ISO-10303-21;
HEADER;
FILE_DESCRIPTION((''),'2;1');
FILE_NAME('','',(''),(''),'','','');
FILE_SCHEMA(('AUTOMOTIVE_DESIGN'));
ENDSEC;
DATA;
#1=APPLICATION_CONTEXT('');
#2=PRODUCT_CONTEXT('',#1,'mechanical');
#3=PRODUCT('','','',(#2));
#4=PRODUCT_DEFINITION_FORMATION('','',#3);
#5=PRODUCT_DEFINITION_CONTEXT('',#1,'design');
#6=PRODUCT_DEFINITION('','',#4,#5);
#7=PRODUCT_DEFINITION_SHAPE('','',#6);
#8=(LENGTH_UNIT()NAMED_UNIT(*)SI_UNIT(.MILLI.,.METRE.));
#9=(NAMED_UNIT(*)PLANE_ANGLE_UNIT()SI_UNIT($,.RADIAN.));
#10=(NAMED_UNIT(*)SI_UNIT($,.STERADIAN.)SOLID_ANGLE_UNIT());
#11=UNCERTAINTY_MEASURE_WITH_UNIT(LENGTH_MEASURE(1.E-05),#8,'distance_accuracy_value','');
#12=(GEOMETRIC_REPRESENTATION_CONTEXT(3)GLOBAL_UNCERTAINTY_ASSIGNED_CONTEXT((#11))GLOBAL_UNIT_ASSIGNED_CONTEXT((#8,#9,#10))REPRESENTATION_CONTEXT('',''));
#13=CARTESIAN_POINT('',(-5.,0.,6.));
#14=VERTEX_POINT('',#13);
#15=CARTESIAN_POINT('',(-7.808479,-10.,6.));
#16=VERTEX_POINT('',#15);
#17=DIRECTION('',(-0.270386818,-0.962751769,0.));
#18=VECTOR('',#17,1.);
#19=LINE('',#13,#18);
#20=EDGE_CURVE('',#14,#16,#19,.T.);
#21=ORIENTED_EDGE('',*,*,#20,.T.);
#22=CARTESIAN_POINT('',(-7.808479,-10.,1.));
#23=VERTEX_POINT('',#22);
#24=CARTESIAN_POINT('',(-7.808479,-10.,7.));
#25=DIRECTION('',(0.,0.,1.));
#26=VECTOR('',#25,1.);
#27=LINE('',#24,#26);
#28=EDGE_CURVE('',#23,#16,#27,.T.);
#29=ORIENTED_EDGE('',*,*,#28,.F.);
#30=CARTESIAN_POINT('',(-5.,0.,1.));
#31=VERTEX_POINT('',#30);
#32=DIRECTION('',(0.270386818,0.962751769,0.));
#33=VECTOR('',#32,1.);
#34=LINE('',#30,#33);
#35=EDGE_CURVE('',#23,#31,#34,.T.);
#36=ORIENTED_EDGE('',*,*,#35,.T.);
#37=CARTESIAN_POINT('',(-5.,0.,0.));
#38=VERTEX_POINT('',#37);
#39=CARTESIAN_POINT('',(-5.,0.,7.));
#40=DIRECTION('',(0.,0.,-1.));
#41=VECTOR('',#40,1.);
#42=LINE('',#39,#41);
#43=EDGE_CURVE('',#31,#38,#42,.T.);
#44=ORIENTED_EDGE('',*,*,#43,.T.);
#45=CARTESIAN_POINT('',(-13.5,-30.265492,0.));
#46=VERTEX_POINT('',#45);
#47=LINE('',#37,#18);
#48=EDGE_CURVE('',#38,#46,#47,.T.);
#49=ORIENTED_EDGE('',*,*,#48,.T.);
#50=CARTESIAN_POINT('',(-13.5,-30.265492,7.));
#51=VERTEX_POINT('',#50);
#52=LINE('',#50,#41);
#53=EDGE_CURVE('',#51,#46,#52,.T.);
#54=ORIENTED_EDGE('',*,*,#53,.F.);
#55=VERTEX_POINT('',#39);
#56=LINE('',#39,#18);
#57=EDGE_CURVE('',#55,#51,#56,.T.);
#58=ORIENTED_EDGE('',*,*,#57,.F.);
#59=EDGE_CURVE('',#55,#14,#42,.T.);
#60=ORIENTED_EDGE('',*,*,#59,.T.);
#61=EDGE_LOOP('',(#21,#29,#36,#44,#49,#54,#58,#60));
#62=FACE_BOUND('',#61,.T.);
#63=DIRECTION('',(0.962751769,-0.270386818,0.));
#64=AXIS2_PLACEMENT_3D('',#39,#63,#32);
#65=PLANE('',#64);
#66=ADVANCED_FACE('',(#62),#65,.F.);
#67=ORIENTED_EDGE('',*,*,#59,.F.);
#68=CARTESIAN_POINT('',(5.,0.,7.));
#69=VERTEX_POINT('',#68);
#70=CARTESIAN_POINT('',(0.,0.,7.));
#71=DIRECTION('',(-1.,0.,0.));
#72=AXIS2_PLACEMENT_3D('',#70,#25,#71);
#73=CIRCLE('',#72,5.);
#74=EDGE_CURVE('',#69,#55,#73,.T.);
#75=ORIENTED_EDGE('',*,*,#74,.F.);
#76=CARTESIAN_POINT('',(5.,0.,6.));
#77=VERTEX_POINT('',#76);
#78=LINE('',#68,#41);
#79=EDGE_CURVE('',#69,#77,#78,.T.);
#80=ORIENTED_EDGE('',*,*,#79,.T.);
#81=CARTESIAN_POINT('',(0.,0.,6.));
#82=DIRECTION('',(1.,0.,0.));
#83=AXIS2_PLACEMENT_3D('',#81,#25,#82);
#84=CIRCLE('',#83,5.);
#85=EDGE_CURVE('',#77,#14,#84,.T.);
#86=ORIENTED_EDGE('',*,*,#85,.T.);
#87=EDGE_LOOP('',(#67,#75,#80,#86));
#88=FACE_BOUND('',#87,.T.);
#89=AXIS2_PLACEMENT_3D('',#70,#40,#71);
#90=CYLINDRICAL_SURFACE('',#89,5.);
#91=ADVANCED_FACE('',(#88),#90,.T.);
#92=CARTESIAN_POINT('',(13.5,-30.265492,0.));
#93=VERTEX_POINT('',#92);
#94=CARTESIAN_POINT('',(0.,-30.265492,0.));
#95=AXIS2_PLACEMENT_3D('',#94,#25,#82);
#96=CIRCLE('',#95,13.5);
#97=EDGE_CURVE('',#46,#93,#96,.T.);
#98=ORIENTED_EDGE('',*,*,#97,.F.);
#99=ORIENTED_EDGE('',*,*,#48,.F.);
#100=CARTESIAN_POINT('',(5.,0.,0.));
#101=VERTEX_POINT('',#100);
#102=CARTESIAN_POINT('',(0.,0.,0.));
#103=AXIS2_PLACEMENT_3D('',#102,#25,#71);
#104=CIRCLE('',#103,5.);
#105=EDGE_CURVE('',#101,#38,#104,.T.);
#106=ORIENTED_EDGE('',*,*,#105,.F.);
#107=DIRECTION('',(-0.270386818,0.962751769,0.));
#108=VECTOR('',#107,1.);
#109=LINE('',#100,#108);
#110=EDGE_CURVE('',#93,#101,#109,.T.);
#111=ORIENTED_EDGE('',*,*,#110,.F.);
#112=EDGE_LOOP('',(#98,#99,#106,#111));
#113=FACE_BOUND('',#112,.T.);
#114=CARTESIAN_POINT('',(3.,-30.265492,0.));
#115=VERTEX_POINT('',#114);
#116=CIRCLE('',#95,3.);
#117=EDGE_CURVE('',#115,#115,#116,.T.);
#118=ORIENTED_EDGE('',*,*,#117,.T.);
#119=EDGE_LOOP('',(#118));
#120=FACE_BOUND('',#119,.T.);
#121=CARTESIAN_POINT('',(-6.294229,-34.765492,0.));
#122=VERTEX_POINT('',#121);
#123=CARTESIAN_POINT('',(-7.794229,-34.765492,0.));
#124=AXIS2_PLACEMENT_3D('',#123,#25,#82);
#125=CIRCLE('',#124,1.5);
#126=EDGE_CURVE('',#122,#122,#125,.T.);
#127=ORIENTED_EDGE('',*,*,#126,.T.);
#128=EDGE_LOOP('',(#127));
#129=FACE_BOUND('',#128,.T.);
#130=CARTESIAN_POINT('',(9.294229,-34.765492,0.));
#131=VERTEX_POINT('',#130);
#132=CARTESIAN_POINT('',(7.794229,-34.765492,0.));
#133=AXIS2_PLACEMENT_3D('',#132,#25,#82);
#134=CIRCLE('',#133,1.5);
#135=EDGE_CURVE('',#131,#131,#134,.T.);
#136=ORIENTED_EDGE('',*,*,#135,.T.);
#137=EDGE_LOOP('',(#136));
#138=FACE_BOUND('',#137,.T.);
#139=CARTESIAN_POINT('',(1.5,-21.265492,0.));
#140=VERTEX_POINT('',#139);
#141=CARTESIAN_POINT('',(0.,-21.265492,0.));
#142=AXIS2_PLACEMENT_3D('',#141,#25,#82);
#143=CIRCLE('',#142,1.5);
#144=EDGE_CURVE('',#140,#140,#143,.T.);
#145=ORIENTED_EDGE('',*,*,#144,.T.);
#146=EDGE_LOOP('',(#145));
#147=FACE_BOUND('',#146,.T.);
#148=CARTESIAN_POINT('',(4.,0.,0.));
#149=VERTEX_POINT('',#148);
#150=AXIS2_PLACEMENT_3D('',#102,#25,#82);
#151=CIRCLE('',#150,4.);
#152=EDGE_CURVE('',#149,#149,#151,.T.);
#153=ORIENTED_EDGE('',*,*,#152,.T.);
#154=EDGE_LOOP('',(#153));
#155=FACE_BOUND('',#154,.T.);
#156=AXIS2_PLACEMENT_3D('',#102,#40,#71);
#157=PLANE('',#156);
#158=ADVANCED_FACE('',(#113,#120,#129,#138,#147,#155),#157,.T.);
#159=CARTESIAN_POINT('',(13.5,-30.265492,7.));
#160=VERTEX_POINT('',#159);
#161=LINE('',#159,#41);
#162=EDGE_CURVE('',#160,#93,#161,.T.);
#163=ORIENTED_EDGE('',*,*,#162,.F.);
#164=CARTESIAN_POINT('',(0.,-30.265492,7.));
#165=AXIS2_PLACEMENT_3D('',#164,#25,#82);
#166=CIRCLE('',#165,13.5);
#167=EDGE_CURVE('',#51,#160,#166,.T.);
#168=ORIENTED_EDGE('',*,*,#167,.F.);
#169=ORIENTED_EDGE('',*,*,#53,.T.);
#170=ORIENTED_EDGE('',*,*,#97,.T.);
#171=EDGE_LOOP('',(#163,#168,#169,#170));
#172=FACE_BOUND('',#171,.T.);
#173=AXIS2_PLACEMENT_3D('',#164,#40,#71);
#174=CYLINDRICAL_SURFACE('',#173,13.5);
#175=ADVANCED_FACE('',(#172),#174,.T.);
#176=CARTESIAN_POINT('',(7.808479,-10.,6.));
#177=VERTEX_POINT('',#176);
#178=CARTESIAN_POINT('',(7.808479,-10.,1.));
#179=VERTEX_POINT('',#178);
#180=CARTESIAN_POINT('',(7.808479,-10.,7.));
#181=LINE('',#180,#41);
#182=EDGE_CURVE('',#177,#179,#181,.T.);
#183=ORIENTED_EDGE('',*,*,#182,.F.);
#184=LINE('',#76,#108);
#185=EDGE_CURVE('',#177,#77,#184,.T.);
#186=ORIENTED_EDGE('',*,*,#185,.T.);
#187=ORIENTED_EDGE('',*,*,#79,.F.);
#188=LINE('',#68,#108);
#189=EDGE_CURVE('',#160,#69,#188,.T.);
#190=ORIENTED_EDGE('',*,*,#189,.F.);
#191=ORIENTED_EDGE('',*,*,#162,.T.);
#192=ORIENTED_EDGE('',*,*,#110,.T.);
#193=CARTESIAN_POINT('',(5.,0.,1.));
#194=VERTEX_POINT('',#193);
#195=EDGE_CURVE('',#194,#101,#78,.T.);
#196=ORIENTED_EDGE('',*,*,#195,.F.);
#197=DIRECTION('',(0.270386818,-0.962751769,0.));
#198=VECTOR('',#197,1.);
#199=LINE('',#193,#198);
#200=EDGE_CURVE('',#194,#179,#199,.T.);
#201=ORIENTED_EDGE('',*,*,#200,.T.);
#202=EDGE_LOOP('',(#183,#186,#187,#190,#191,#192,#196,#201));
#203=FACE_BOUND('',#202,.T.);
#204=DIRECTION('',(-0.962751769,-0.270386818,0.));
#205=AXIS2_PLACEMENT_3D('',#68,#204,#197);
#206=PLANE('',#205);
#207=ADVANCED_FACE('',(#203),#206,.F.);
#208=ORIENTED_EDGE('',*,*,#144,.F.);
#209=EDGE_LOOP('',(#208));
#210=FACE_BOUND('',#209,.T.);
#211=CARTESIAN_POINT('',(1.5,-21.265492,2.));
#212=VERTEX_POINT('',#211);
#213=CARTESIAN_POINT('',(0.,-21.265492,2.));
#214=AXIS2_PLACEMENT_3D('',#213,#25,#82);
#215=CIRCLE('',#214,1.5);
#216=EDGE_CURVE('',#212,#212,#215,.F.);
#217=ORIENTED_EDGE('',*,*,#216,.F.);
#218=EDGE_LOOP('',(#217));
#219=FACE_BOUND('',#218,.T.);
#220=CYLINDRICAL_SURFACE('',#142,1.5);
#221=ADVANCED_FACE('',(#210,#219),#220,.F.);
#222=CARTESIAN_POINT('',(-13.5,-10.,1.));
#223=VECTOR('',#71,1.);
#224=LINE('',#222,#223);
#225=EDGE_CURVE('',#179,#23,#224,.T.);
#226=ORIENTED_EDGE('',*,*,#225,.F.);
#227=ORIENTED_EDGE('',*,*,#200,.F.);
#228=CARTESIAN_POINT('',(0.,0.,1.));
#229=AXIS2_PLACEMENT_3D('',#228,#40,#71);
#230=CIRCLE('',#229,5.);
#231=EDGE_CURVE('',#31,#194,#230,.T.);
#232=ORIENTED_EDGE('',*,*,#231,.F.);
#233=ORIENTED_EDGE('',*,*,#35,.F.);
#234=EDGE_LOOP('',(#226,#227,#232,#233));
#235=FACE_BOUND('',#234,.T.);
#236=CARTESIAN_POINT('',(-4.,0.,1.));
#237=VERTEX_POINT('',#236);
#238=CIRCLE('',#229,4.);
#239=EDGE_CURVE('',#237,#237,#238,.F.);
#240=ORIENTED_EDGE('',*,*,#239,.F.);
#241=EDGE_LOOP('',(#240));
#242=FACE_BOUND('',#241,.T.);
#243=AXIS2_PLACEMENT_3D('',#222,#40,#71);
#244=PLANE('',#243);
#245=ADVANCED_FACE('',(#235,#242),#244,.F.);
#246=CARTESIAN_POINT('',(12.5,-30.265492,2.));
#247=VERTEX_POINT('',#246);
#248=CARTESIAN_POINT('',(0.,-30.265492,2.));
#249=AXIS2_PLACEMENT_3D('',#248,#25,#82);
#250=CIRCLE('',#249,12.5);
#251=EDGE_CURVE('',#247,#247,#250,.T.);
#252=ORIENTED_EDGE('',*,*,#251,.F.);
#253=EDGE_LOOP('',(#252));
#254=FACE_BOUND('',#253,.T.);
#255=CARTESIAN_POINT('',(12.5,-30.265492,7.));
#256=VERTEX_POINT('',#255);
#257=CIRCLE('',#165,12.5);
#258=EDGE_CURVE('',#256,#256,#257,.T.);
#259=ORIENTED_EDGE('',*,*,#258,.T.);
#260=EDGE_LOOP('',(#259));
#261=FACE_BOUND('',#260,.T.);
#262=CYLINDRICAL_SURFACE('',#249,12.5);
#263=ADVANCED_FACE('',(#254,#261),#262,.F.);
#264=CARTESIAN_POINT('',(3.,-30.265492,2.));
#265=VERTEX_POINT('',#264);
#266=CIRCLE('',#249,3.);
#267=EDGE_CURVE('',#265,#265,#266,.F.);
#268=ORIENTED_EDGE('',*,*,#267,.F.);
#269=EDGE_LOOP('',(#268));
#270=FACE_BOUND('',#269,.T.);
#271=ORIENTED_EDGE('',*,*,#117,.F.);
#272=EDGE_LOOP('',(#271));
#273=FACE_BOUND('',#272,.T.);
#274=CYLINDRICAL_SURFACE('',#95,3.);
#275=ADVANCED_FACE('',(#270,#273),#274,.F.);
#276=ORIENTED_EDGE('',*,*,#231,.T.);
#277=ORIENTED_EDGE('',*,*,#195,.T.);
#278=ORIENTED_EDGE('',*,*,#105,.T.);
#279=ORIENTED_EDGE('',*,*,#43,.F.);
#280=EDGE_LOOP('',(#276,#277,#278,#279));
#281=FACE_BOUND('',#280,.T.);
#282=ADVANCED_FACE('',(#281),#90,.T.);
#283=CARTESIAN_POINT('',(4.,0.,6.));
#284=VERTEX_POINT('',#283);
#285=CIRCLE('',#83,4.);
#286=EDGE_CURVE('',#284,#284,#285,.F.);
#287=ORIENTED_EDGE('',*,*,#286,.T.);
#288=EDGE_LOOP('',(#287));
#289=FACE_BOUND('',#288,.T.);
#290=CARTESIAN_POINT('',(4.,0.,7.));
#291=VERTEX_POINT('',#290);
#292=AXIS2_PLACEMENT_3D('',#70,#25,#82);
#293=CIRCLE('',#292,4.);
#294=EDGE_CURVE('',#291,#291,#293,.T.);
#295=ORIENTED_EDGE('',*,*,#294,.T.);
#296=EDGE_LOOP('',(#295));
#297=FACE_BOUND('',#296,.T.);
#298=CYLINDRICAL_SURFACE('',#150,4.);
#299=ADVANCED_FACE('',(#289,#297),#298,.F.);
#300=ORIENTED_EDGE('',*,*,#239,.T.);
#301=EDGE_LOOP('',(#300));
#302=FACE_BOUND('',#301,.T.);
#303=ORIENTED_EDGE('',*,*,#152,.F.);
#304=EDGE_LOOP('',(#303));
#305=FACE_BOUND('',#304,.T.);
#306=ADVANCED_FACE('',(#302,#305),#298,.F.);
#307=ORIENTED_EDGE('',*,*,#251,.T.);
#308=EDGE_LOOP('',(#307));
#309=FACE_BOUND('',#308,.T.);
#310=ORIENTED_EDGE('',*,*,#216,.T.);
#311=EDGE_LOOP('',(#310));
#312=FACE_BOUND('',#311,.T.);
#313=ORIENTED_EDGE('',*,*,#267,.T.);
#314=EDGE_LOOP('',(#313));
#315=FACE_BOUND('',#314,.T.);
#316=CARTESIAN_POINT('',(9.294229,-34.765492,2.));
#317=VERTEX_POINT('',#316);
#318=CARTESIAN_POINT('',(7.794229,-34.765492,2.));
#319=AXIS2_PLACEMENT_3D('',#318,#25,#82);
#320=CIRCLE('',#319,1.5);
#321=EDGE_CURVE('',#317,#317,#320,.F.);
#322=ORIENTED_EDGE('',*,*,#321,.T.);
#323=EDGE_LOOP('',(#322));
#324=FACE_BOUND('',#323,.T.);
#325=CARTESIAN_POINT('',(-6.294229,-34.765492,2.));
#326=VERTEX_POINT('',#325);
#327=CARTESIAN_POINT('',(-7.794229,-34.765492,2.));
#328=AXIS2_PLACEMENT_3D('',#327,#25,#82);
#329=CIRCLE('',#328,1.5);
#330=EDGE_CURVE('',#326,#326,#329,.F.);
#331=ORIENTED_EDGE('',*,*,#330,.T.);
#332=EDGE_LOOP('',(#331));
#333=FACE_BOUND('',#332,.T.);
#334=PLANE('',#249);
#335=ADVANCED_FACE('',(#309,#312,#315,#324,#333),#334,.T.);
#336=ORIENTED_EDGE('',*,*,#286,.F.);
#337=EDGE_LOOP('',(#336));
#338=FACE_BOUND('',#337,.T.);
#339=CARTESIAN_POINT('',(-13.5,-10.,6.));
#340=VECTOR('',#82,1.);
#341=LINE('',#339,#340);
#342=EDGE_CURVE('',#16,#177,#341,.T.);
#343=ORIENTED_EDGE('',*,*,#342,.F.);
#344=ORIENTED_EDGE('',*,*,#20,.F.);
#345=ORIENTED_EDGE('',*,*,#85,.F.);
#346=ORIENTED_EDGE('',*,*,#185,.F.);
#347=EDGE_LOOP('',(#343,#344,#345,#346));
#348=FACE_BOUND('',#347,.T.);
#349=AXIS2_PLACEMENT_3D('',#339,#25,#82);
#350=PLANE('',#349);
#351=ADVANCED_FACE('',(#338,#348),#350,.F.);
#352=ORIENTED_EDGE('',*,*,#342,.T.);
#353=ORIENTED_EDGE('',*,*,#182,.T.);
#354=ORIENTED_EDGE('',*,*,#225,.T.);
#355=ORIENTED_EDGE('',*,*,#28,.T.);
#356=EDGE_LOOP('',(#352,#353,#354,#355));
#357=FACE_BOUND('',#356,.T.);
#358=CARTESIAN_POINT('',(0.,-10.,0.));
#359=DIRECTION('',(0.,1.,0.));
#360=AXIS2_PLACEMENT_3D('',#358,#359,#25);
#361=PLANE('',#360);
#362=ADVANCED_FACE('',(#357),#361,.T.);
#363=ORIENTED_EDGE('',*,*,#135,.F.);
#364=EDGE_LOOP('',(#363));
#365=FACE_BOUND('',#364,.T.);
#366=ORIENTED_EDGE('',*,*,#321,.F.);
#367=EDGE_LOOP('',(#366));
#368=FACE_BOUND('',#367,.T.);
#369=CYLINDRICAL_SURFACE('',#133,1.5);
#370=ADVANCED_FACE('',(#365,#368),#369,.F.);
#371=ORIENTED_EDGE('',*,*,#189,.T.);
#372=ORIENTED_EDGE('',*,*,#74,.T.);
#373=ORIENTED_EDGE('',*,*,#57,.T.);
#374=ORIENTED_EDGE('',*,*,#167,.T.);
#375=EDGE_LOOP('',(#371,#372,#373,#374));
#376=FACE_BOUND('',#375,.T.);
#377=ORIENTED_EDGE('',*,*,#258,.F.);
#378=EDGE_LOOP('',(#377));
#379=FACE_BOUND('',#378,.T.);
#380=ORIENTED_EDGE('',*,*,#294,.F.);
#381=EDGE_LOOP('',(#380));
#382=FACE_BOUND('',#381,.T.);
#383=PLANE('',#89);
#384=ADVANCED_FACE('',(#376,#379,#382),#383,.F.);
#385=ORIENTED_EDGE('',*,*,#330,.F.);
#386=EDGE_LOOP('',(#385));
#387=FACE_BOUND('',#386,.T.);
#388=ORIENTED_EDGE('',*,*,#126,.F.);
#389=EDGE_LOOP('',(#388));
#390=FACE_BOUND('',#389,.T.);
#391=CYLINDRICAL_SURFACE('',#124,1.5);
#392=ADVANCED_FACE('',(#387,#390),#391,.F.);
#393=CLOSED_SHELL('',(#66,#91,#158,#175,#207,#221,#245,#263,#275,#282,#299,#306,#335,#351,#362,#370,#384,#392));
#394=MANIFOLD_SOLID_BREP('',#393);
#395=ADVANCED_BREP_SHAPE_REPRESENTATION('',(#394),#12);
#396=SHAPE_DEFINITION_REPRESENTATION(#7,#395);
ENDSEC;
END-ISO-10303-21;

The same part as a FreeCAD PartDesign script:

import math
import FreeCAD as App
import Part
import Sketcher
from FreeCAD import Vector


def add_polygon(sketch, points):
    """Adds a closed chain of lines whose ends are joined by coincident constraints."""
    first, n = sketch.GeometryCount, len(points)
    for a, b in zip(points, points[1:] + points[:1]):
        sketch.addGeometry(Part.LineSegment(App.Vector(*a, 0), App.Vector(*b, 0)), False)
    for i in range(n):
        sketch.addConstraint(Sketcher.Constraint("Coincident", first + i, 2, first + (i + 1) % n, 1))

doc = App.newDocument("Part")
params = doc.addObject("Spreadsheet::Sheet", "Params")
for row, (alias, value) in enumerate([
    ("sketch1_radius", "5 mm"),
    ("sketch1_radius2", "13.5 mm"),
    ("pad1_length", "7 mm"),
    ("sketch2_diameter", "6 mm"),
    ("pocket1_length", "7 mm"),
    ("sketch3_diameter", "3 mm"),
    ("pocket2_length", "7 mm"),
    ("sketch4_diameter", "8 mm"),
    ("pocket3_length", "7 mm"),
    ("sketch5_diameter", "25 mm"),
    ("pocket4_length", "5 mm"),
    ("sketch6_width", "27 mm"),
    ("sketch6_height", "5 mm"),
    ("pocket5_length", "20 mm"),
], start=1):
    params.set(f"A{row}", alias)
    params.set(f"B{row}", "=" + value)
    params.setAlias(f"B{row}", alias)

body = doc.addObject("PartDesign::Body", "Body")

# Sketch on XY plane
sketch1 = body.newObject("Sketcher::SketchObject", "Sketch")
sketch1.AttachmentSupport = (doc.getObject("XY_Plane"), [""])
sketch1.MapMode = "FlatFace"
sketch1.addGeometry([
    Part.LineSegment(Vector(13.5, -30.265492, 0), Vector(5, 0, 0)),
    Part.ArcOfCircle(Part.Circle(Vector(0, 0, 0), Vector(0, 0, 1), 5), math.radians(0), math.radians(180)),
    Part.LineSegment(Vector(-5, 0, 0), Vector(-13.5, -30.265492, 0)),
    Part.ArcOfCircle(Part.Circle(Vector(0, -30.265492, 0), Vector(0, 0, 1), 13.5), math.radians(180), math.radians(360)),
], False)
sketch1.addConstraint([
    Sketcher.Constraint("Coincident", 0, 2, 1, 1),
    Sketcher.Constraint("Coincident", 1, 2, 2, 1),
    Sketcher.Constraint("Coincident", 2, 2, 3, 1),
    Sketcher.Constraint("Coincident", 3, 2, 0, 1),
    Sketcher.Constraint("Coincident", 1, 3, -1, 1),
    Sketcher.Constraint("Symmetric", 2, 2, 3, 2, -2),
    Sketcher.Constraint("PointOnObject", 0, 2, -1),
    Sketcher.Constraint("PointOnObject", 1, 2, -1),
    Sketcher.Constraint("Horizontal", 3, 3, 2, 2),
    Sketcher.Constraint("Radius", 1, 5.0),
    Sketcher.Constraint("Radius", 3, 13.5),
    Sketcher.Constraint("DistanceY", 3, 3, -1, 1, 30.265492),
])
sketch1.setExpression("Constraints[9]", "Params.sketch1_radius")
sketch1.setExpression("Constraints[10]", "Params.sketch1_radius2")
pad1 = body.newObject("PartDesign::Pad", "Pad")
pad1.Profile = sketch1
pad1.setExpression("Length", "Params.pad1_length")

# Sketch on XY plane
sketch2 = body.newObject("Sketcher::SketchObject", "Sketch001")
sketch2.AttachmentSupport = (doc.getObject("XY_Plane"), [""])
sketch2.MapMode = "FlatFace"
sketch2.AttachmentOffset = App.Placement(Vector(0, 0, 7), App.Rotation())
sketch2.addGeometry(Part.Circle(Vector(0, -30.265492, 0), Vector(0, 0, 1), 3), False)
sketch2.addConstraint([
    Sketcher.Constraint("PointOnObject", 0, 3, -2),
    Sketcher.Constraint("Diameter", 0, 6.0),
    Sketcher.Constraint("DistanceY", 0, 3, -1, 1, 30.265492),
])
sketch2.setExpression("Constraints[1]", "Params.sketch2_diameter")
pocket1 = body.newObject("PartDesign::Pocket", "Pocket")
pocket1.Profile = sketch2
pocket1.setExpression("Length", "Params.pocket1_length")

# Sketch on XY plane
sketch3 = body.newObject("Sketcher::SketchObject", "Sketch002")
sketch3.AttachmentSupport = (doc.getObject("XY_Plane"), [""])
sketch3.MapMode = "FlatFace"
sketch3.AttachmentOffset = App.Placement(Vector(0, 0, 7), App.Rotation())
sketch3.addGeometry([
    Part.Circle(Vector(0, -21.265492, 0), Vector(0, 0, 1), 1.5),
    Part.Circle(Vector(-7.794229, -34.765492, 0), Vector(0, 0, 1), 1.5),
    Part.Circle(Vector(7.794229, -34.765492, 0), Vector(0, 0, 1), 1.5),
], False)
sketch3.addConstraint([
    Sketcher.Constraint("Equal", 0, 1),
    Sketcher.Constraint("Equal", 1, 2),
    Sketcher.Constraint("Symmetric", 1, 3, 2, 3, -2),
    Sketcher.Constraint("PointOnObject", 0, 3, -2),
    Sketcher.Constraint("Diameter", 0, 3.0),
    Sketcher.Constraint("DistanceY", 1, 3, 0, 3, 13.5),
    Sketcher.Constraint("DistanceY", 0, 3, -1, 1, 21.265492),
    Sketcher.Constraint("DistanceX", 1, 3, -1, 1, 7.794229),
])
sketch3.setExpression("Constraints[4]", "Params.sketch3_diameter")
pocket2 = body.newObject("PartDesign::Pocket", "Pocket001")
pocket2.Profile = sketch3
pocket2.setExpression("Length", "Params.pocket2_length")

# Sketch on XY plane
sketch4 = body.newObject("Sketcher::SketchObject", "Sketch003")
sketch4.AttachmentSupport = (doc.getObject("XY_Plane"), [""])
sketch4.MapMode = "FlatFace"
sketch4.AttachmentOffset = App.Placement(Vector(0, 0, 7), App.Rotation())
sketch4.addGeometry(Part.Circle(Vector(0, 0, 0), Vector(0, 0, 1), 4), False)
sketch4.addConstraint([
    Sketcher.Constraint("Coincident", 0, 3, -1, 1),
    Sketcher.Constraint("Diameter", 0, 8.0),
])
sketch4.setExpression("Constraints[1]", "Params.sketch4_diameter")
pocket3 = body.newObject("PartDesign::Pocket", "Pocket002")
pocket3.Profile = sketch4
pocket3.setExpression("Length", "Params.pocket3_length")

# Sketch on XY plane
sketch5 = body.newObject("Sketcher::SketchObject", "Sketch004")
sketch5.AttachmentSupport = (doc.getObject("XY_Plane"), [""])
sketch5.MapMode = "FlatFace"
sketch5.AttachmentOffset = App.Placement(Vector(0, 0, 7), App.Rotation())
sketch5.addGeometry(Part.Circle(Vector(0, -30.265492, 0), Vector(0, 0, 1), 12.5), False)
sketch5.addConstraint([
    Sketcher.Constraint("PointOnObject", 0, 3, -2),
    Sketcher.Constraint("Diameter", 0, 25.0),
    Sketcher.Constraint("DistanceY", 0, 3, -1, 1, 30.265492),
])
sketch5.setExpression("Constraints[1]", "Params.sketch5_diameter")
pocket4 = body.newObject("PartDesign::Pocket", "Pocket003")
pocket4.Profile = sketch5
pocket4.setExpression("Length", "Params.pocket4_length")

# Sketch on XZ plane
sketch6 = body.newObject("Sketcher::SketchObject", "Sketch005")
sketch6.AttachmentSupport = (doc.getObject("XZ_Plane"), [""])
sketch6.MapMode = "FlatFace"
sketch6.AttachmentOffset = App.Placement(Vector(0, 0, -10), App.Rotation())
add_polygon(sketch6, [(-13.5, 1), (-13.5, 6), (13.5, 6), (13.5, 1)])  # lines 0-3
sketch6.addConstraint([
    Sketcher.Constraint("Vertical", 0),
    Sketcher.Constraint("Horizontal", 1),
    Sketcher.Constraint("Vertical", 2),
    Sketcher.Constraint("Horizontal", 3),
    Sketcher.Constraint("DistanceX", 1, 1, 1, 2, 27.0),
    Sketcher.Constraint("DistanceY", 0, 1, 0, 2, 5.0),
    Sketcher.Constraint("DistanceY", -1, 1, 0, 2, 6.0),
    Sketcher.Constraint("DistanceX", 0, 2, -1, 1, 13.5),
])
sketch6.setExpression("Constraints[8]", "Params.sketch6_width")
sketch6.setExpression("Constraints[9]", "Params.sketch6_height")
pocket5 = body.newObject("PartDesign::Pocket", "Pocket004")
pocket5.Profile = sketch6
pocket5.setExpression("Length", "Params.pocket5_length")
pocket5.Reversed = True

doc.recompute()
